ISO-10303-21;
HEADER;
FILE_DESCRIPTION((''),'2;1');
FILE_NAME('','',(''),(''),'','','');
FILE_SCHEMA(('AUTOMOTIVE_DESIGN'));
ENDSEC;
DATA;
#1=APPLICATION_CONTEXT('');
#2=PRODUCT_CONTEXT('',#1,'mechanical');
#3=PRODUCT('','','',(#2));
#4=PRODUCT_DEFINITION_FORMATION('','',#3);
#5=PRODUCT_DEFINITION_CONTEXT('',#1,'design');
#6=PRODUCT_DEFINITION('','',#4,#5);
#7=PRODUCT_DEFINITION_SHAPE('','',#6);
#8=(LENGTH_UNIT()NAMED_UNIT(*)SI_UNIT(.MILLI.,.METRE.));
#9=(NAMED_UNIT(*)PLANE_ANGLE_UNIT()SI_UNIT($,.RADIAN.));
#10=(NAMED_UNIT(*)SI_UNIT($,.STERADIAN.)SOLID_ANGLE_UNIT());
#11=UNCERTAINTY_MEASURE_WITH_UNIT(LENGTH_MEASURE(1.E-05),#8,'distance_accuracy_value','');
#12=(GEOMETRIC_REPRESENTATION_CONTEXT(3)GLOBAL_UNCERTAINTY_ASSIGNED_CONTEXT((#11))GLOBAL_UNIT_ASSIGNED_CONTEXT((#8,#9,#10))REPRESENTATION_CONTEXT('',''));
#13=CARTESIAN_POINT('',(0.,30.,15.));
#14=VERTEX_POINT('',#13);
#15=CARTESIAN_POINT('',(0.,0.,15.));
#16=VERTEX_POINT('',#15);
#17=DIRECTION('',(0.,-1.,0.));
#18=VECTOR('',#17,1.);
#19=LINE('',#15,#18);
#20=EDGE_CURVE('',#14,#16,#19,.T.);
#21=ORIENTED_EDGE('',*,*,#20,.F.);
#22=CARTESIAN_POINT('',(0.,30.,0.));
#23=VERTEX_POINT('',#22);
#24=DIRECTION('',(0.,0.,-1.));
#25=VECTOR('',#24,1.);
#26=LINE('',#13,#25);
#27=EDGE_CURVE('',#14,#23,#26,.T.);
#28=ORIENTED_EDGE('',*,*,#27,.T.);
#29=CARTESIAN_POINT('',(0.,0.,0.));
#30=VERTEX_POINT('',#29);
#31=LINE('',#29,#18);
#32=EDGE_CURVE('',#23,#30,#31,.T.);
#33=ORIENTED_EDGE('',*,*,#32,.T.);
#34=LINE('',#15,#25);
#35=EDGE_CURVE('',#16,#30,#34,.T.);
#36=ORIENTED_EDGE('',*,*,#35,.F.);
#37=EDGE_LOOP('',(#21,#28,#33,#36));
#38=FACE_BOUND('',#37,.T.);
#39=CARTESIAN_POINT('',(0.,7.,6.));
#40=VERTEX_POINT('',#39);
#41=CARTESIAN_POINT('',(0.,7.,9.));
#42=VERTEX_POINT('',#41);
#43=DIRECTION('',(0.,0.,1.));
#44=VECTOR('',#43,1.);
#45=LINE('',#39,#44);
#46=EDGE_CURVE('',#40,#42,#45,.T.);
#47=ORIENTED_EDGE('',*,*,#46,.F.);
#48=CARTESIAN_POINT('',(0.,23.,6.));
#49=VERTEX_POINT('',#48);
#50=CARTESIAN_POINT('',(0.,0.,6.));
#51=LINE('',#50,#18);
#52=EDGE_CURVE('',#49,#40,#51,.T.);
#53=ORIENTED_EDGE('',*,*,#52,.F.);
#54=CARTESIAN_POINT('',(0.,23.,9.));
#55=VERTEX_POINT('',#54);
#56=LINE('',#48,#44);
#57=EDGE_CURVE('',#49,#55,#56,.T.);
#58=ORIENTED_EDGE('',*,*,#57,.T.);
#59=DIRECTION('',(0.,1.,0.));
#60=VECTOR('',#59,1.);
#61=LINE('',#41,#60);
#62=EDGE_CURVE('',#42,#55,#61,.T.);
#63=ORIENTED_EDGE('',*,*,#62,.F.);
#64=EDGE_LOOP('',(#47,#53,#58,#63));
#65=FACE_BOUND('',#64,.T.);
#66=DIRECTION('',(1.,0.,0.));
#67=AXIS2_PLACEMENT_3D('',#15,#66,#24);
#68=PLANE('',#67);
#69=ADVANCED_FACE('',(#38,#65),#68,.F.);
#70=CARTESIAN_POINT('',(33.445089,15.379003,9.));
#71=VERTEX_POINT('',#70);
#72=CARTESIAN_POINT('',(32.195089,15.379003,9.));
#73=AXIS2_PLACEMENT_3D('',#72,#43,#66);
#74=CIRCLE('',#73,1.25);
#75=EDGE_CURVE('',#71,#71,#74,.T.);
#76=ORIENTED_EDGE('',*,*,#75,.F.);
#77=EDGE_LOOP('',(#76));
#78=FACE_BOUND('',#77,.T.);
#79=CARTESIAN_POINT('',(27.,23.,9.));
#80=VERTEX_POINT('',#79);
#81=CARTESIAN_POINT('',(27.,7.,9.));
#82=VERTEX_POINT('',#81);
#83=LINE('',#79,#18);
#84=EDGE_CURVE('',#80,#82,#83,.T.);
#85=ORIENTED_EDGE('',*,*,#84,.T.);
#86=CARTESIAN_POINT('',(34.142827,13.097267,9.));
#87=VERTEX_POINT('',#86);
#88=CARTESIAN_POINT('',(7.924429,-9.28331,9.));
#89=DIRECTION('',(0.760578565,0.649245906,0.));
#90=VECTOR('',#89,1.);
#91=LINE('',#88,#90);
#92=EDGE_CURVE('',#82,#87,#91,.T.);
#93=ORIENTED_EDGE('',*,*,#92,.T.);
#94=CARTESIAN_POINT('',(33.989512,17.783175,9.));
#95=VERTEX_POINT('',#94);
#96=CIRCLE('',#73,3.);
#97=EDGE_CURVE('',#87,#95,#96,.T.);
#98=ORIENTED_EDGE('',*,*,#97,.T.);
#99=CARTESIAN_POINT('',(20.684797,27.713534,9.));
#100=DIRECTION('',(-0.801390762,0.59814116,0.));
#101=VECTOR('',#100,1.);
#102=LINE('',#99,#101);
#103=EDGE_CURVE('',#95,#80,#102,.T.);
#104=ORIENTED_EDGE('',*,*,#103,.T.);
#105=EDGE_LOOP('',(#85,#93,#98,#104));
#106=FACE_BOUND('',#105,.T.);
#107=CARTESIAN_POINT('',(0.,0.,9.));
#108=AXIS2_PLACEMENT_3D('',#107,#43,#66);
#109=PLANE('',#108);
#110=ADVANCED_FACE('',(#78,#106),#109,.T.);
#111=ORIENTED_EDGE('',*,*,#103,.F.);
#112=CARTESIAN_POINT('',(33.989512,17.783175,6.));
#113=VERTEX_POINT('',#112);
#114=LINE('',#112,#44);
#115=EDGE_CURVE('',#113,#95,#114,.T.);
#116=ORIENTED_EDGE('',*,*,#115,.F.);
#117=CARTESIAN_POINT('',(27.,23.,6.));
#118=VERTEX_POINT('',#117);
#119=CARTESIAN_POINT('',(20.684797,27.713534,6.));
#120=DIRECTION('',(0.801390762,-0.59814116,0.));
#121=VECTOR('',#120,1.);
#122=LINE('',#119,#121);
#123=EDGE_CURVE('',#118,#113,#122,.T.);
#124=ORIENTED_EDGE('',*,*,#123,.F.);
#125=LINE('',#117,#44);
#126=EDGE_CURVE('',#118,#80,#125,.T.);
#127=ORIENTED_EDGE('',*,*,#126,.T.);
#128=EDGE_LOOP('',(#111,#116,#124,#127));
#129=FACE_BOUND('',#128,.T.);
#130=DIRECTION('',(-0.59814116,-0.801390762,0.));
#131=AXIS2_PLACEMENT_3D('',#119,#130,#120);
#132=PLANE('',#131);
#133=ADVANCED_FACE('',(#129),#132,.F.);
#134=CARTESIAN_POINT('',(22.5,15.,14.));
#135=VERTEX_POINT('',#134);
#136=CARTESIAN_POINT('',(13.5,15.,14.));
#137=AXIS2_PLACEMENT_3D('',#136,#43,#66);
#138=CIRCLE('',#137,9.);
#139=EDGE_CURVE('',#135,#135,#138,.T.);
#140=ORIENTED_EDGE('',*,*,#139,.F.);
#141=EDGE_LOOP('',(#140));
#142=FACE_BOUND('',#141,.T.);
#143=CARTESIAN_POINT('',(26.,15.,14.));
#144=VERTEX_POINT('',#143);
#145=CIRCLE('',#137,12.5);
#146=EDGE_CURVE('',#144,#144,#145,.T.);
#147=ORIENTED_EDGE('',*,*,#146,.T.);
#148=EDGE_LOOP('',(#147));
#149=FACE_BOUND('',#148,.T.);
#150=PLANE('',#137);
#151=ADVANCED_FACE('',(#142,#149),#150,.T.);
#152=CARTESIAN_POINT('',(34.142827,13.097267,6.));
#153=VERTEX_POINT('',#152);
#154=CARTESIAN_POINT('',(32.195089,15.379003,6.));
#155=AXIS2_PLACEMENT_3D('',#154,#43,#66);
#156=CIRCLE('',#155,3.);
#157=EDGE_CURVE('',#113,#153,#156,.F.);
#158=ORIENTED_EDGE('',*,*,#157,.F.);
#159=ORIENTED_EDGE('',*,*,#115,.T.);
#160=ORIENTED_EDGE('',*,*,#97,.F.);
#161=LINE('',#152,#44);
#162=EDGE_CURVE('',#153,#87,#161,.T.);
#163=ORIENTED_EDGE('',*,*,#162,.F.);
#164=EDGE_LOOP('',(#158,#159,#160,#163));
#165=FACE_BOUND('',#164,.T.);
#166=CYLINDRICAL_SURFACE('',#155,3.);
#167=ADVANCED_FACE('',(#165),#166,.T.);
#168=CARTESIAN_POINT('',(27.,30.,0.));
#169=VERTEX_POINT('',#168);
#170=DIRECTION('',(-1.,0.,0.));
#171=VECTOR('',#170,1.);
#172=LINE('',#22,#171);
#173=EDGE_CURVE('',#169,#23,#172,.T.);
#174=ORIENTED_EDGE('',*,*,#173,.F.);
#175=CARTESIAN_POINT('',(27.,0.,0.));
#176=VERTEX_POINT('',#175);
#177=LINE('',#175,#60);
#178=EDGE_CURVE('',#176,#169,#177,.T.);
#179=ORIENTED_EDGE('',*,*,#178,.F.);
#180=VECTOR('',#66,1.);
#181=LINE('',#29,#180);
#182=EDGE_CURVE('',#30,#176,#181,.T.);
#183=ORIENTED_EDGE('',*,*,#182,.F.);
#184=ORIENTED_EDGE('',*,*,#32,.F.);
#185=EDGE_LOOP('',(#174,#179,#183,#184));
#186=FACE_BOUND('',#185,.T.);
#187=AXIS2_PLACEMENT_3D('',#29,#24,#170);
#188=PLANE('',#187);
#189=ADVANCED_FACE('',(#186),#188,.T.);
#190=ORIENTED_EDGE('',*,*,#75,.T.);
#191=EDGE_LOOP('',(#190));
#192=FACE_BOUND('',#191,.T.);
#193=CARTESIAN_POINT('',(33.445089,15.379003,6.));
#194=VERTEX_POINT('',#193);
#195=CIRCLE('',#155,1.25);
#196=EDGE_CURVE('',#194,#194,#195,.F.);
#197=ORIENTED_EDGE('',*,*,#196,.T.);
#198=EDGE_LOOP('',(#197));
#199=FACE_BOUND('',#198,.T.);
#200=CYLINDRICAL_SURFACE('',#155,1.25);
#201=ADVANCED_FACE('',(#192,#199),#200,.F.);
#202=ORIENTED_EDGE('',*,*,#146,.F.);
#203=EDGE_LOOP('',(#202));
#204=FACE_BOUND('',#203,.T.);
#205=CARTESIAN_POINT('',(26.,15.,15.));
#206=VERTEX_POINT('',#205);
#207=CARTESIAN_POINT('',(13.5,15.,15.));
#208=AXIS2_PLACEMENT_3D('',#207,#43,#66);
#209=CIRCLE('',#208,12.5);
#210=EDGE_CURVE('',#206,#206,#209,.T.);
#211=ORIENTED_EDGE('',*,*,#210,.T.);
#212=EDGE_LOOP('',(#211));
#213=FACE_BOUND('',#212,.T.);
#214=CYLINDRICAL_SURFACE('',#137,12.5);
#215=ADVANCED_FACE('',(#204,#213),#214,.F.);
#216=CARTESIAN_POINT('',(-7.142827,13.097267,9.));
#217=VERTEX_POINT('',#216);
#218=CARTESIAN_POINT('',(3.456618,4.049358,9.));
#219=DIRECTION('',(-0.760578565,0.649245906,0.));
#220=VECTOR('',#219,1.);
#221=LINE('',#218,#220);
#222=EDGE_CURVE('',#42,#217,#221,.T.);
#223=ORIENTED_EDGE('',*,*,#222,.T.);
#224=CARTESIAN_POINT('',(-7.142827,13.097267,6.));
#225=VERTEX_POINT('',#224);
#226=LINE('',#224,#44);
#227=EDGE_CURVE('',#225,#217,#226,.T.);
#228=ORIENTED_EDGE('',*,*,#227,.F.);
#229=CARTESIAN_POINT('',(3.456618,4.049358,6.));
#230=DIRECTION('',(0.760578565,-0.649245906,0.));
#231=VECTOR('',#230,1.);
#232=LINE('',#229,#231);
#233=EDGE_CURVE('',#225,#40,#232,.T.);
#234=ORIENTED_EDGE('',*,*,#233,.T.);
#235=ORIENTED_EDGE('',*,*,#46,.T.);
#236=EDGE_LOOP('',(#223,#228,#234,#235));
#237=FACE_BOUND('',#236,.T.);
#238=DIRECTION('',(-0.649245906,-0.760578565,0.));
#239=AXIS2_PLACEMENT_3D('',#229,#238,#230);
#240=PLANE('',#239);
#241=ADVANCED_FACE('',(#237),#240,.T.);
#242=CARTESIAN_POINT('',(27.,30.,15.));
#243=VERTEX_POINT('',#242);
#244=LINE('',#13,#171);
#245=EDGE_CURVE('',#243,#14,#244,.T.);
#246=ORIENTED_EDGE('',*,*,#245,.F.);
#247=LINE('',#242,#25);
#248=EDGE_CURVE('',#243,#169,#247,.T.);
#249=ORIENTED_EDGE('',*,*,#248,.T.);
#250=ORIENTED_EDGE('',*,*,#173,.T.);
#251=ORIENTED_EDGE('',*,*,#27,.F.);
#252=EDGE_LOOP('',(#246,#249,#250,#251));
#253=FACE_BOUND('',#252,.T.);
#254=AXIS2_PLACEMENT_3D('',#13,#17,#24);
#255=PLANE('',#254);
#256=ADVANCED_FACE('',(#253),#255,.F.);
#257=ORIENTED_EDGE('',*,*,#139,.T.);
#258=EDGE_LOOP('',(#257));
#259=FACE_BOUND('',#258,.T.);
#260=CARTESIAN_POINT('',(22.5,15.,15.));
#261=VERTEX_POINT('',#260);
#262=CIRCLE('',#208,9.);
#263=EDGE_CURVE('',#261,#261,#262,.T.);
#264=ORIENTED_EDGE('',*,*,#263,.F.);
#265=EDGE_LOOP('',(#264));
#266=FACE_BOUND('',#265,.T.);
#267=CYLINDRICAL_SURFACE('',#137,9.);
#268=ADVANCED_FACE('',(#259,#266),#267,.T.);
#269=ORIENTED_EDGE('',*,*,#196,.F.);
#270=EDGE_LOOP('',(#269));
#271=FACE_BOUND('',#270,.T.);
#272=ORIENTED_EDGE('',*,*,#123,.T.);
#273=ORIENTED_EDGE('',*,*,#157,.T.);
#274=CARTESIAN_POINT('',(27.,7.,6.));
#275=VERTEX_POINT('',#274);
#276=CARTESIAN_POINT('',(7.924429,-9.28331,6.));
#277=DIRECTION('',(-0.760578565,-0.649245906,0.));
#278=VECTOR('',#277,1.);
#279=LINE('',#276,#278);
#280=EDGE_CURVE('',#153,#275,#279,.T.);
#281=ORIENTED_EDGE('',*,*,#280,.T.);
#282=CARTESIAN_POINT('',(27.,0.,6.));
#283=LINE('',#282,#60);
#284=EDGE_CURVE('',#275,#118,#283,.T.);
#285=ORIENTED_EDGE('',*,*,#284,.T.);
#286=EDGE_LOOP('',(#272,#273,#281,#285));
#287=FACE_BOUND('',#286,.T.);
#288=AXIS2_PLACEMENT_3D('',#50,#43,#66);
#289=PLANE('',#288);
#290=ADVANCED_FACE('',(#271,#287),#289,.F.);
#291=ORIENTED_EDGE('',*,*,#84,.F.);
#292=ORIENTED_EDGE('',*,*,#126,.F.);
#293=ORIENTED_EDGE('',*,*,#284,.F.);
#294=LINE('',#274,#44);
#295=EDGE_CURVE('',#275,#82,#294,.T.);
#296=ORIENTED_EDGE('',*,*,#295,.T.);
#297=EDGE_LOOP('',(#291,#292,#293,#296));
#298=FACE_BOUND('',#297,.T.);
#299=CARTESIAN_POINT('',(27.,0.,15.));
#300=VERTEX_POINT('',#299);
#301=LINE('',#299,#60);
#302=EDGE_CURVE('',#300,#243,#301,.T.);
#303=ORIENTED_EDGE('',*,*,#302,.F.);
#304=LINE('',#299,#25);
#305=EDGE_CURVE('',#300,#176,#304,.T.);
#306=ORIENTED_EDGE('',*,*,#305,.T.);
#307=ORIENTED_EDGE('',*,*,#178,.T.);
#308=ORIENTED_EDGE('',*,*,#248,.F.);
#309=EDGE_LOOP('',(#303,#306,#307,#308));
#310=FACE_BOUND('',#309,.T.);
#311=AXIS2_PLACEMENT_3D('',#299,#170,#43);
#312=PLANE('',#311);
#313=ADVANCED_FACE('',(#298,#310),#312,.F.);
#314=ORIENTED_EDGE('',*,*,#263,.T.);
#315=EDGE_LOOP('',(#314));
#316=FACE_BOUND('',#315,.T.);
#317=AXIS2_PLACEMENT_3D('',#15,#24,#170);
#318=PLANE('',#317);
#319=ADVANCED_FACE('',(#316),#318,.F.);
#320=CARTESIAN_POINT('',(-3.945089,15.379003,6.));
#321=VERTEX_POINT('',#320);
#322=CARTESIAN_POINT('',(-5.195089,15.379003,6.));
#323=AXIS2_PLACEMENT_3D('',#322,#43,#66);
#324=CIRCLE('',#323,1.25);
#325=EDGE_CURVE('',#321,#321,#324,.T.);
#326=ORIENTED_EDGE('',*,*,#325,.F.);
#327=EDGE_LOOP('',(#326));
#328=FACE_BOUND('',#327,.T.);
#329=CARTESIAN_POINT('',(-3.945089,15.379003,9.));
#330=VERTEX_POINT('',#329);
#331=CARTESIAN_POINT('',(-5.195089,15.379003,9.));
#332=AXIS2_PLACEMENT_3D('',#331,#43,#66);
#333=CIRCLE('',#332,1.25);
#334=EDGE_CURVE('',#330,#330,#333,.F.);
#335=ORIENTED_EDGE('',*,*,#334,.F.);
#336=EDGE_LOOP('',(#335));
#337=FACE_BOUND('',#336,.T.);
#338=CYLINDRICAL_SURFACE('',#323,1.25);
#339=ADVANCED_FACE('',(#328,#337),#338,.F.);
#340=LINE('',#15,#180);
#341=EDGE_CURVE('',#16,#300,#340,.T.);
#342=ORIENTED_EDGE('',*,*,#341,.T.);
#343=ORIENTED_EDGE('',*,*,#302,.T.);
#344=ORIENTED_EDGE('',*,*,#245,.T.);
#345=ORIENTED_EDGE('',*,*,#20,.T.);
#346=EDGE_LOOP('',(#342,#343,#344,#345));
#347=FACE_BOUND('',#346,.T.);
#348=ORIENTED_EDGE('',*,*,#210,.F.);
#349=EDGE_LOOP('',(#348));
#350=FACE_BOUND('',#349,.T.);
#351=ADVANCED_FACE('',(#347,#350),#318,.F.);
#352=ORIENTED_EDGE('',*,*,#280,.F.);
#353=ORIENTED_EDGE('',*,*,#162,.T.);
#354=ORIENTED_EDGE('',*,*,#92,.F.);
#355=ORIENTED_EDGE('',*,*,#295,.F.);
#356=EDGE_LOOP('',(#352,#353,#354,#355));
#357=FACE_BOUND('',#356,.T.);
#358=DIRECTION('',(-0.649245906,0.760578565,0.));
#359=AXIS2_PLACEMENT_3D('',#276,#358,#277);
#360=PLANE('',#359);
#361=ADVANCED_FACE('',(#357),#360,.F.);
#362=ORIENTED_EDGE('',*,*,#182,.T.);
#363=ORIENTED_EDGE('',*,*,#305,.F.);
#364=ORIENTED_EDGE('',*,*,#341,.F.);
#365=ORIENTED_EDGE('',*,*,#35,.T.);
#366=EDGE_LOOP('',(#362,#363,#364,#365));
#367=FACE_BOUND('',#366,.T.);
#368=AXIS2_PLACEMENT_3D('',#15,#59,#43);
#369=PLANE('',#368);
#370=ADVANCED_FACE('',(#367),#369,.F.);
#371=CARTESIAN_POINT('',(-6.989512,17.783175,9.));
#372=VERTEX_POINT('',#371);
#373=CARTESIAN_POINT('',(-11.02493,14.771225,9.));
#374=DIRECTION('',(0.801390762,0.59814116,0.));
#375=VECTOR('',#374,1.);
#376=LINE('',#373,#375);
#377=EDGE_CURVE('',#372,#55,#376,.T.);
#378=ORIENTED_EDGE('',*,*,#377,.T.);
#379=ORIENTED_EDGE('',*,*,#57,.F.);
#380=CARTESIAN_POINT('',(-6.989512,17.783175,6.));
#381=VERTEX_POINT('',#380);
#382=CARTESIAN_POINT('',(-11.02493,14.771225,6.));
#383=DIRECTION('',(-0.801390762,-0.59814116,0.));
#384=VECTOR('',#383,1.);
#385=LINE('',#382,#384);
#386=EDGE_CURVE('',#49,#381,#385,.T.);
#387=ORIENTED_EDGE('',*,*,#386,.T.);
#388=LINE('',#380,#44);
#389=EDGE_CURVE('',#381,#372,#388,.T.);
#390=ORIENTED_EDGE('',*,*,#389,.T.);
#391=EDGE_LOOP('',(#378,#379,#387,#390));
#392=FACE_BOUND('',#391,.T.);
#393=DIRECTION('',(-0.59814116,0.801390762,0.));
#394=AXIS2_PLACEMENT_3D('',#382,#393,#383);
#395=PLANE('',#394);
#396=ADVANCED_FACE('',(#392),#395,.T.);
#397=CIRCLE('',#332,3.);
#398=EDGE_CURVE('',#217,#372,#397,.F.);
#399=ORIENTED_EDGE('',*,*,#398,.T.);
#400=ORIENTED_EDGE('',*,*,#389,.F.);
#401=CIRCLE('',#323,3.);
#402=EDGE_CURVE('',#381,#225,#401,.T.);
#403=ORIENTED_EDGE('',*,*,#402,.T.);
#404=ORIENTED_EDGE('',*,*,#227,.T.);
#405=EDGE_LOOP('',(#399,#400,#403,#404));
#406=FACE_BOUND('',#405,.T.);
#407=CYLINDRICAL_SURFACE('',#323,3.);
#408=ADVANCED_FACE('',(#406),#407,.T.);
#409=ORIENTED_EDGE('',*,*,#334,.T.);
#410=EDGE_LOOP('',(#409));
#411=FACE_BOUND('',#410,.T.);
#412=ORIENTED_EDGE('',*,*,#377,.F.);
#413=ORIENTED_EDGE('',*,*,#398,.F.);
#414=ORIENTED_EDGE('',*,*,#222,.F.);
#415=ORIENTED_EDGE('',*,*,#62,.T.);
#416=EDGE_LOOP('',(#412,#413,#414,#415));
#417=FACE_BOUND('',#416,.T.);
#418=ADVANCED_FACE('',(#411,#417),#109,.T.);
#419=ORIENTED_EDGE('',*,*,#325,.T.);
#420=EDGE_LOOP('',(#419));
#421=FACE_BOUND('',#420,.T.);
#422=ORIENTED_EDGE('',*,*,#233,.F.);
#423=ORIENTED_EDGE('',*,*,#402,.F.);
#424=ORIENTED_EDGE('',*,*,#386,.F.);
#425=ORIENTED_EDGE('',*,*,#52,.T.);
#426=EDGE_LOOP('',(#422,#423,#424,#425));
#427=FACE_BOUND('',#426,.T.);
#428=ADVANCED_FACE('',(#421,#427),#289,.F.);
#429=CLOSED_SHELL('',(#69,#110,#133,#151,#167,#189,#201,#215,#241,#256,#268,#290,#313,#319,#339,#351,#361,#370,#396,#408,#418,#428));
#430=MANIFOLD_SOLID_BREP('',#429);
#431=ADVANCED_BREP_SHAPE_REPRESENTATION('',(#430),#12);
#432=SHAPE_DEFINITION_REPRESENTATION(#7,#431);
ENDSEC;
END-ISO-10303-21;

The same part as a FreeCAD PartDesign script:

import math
import FreeCAD as App
import Part
import Sketcher

doc = App.newDocument("Part")
body = doc.addObject("PartDesign::Body", "Body")

# Sketch on XY plane
sketch1 = body.newObject("Sketcher::SketchObject", "Sketch")
sketch1.AttachmentSupport = (doc.getObject("XY_Plane"), [""])
sketch1.MapMode = "FlatFace"
sketch1.addGeometry([
    Part.LineSegment(App.Vector(0, 30, 0), App.Vector(0, 0, 0)),
    Part.LineSegment(App.Vector(0, 0, 0), App.Vector(27, 0, 0)),
    Part.LineSegment(App.Vector(27, 0, 0), App.Vector(27, 30, 0)),
    Part.LineSegment(App.Vector(27, 30, 0), App.Vector(0, 30, 0)),
], False)
sketch1.addConstraint([
    Sketcher.Constraint("Coincident", 0, 2, 1, 1),
    Sketcher.Constraint("Coincident", 1, 2, 2, 1),
    Sketcher.Constraint("Coincident", 2, 2, 3, 1),
    Sketcher.Constraint("Coincident", 3, 2, 0, 1),
    Sketcher.Constraint("Vertical", 0),
    Sketcher.Constraint("Horizontal", 1),
    Sketcher.Constraint("Vertical", 2),
    Sketcher.Constraint("Horizontal", 3),
    Sketcher.Constraint("Coincident", 0, 2, -1, 1),
    Sketcher.Constraint("DistanceX", 1, 1, 1, 2, 27.0),
    Sketcher.Constraint("DistanceY", 0, 2, 0, 1, 30.0),
])
pad1 = body.newObject("PartDesign::Pad", "Pad")
pad1.Profile = sketch1
pad1.Length = 15

# Sketch on XY plane
sketch2 = body.newObject("Sketcher::SketchObject", "Sketch001")
sketch2.AttachmentSupport = (doc.getObject("XY_Plane"), [""])
sketch2.MapMode = "FlatFace"
sketch2.AttachmentOffset = App.Placement(App.Vector(0, 0, 15), App.Rotation())
sketch2.addGeometry([
    Part.Circle(App.Vector(13.5, 15, 0), App.Vector(0, 0, 1), 12.5),
    Part.Circle(App.Vector(13.5, 15, 0), App.Vector(0, 0, 1), 9),
], False)
sketch2.addConstraint([
    Sketcher.Constraint("Coincident", 1, 3, 0, 3),
    Sketcher.Constraint("Diameter", 0, 25.0),
    Sketcher.Constraint("Diameter", 1, 18.0),
    Sketcher.Constraint("DistanceY", -1, 1, 0, 3, 15.0),
    Sketcher.Constraint("DistanceX", -1, 1, 0, 3, 13.5),
])
pocket1 = body.newObject("PartDesign::Pocket", "Pocket")
pocket1.Profile = sketch2
pocket1.Length = 1

# Sketch on XY plane
sketch3 = body.newObject("Sketcher::SketchObject", "Sketch002")
sketch3.AttachmentSupport = (doc.getObject("XY_Plane"), [""])
sketch3.MapMode = "FlatFace"
sketch3.AttachmentOffset = App.Placement(App.Vector(0, 0, 15), App.Rotation())
sketch3.addGeometry([
    Part.LineSegment(App.Vector(0, 7, 0), App.Vector(0, 23, 0)),  # 0
    Part.LineSegment(App.Vector(0, 23, 0), App.Vector(-6.989512, 17.783175, 0)),  # 1
    Part.ArcOfCircle(Part.Circle(App.Vector(-5.195089, 15.379003, 0), App.Vector(0, 0, 1), 3), math.radians(126.736884), math.radians(229.515229)),  # 2
    Part.LineSegment(App.Vector(-7.142827, 13.097267, 0), App.Vector(0, 7, 0)),  # 3
    Part.Circle(App.Vector(-5.195089, 15.379003, 0), App.Vector(0, 0, 1), 1.25),  # 4
    Part.LineSegment(App.Vector(27, 7, 0), App.Vector(34.142827, 13.097267, 0)),  # 5
    Part.ArcOfCircle(Part.Circle(App.Vector(32.195089, 15.379003, 0), App.Vector(0, 0, 1), 3), math.radians(-49.515229), math.radians(53.263116)),  # 6
    Part.LineSegment(App.Vector(33.989512, 17.783175, 0), App.Vector(27, 23, 0)),  # 7
    Part.LineSegment(App.Vector(27, 23, 0), App.Vector(27, 7, 0)),  # 8
    Part.Circle(App.Vector(32.195089, 15.379003, 0), App.Vector(0, 0, 1), 1.25),  # 9
], False)
sketch3.addConstraint([
    Sketcher.Constraint("Coincident", 0, 2, 1, 1),
    Sketcher.Constraint("Tangent", 1, 2, 2, 1),
    Sketcher.Constraint("Tangent", 2, 2, 3, 1),
    Sketcher.Constraint("Coincident", 3, 2, 0, 1),
    Sketcher.Constraint("Tangent", 5, 2, 6, 1),
    Sketcher.Constraint("Tangent", 6, 2, 7, 1),
    Sketcher.Constraint("Coincident", 7, 2, 8, 1),
    Sketcher.Constraint("Coincident", 8, 2, 5, 1),
    Sketcher.Constraint("Vertical", 0),
    Sketcher.Constraint("Vertical", 8),
    Sketcher.Constraint("Coincident", 4, 3, 2, 3),
    Sketcher.Constraint("Coincident", 9, 3, 6, 3),
    Sketcher.Constraint("Equal", 2, 6),
    Sketcher.Constraint("Equal", 4, 9),
    Sketcher.Constraint("PointOnObject", 0, 2, -2),
    Sketcher.Constraint("Horizontal", 4, 3, 6, 3),
    Sketcher.Constraint("Horizontal", 2, 2, 5, 2),
    Sketcher.Constraint("Horizontal", 1, 2, 6, 2),
    Sketcher.Constraint("Horizontal", 0, 2, 7, 2),
    Sketcher.Constraint("Radius", 2, 3.0),
    Sketcher.Constraint("Diameter", 4, 2.5),
    Sketcher.Constraint("DistanceY", 0, 1, 0, 2, 16.0),
    Sketcher.Constraint("DistanceY", -1, 1, 0, 2, 23.0),
    Sketcher.Constraint("DistanceX", -1, 1, 7, 2, 27.0),
    Sketcher.Constraint("DistanceX", 1, 2, 6, 3, 39.184601),
    Sketcher.Constraint("Distance", 1, 8.721728),
])
pad2 = body.newObject("PartDesign::Pad", "Pad001")
pad2.Profile = sketch3
pad2.Length = 9
pad2.Reversed = True

# Sketch on XY plane
sketch4 = body.newObject("Sketcher::SketchObject", "Sketch003")
sketch4.AttachmentSupport = (doc.getObject("XY_Plane"), [""])
sketch4.MapMode = "FlatFace"
sketch4.AttachmentOffset = App.Placement(App.Vector(0, 0, 15), App.Rotation())
sketch4.addGeometry([
    Part.LineSegment(App.Vector(0, 23, 0), App.Vector(-13.068539, 23, 0)),  # 0
    Part.LineSegment(App.Vector(-13.068539, 23, 0), App.Vector(-13.068539, 5.328314, 0)),  # 1
    Part.LineSegment(App.Vector(-13.068539, 5.328314, 0), App.Vector(0, 7, 0)),  # 2
    Part.LineSegment(App.Vector(0, 7, 0), App.Vector(0, 23, 0)),  # 3
    Part.LineSegment(App.Vector(27, 23, 0), App.Vector(27, 7, 0)),  # 4
    Part.LineSegment(App.Vector(27, 7, 0), App.Vector(37.736601, 7, 0)),  # 5
    Part.LineSegment(App.Vector(37.736601, 7, 0), App.Vector(37.736601, 23, 0)),  # 6
    Part.LineSegment(App.Vector(37.736601, 23, 0), App.Vector(27, 23, 0)),  # 7
], False)
sketch4.addConstraint([
    Sketcher.Constraint("Coincident", 0, 2, 1, 1),
    Sketcher.Constraint("Coincident", 1, 2, 2, 1),
    Sketcher.Constraint("Coincident", 2, 2, 3, 1),
    Sketcher.Constraint("Coincident", 3, 2, 0, 1),
    Sketcher.Constraint("Coincident", 4, 2, 5, 1),
    Sketcher.Constraint("Coincident", 5, 2, 6, 1),
    Sketcher.Constraint("Coincident", 6, 2, 7, 1),
    Sketcher.Constraint("Coincident", 7, 2, 4, 1),
    Sketcher.Constraint("Horizontal", 0),
    Sketcher.Constraint("Vertical", 1),
    Sketcher.Constraint("Vertical", 3),
    Sketcher.Constraint("Vertical", 4),
    Sketcher.Constraint("Horizontal", 5),
    Sketcher.Constraint("Vertical", 6),
    Sketcher.Constraint("Horizontal", 7),
    Sketcher.Constraint("PointOnObject", 2, 2, -2),
    Sketcher.Constraint("Horizontal", 2, 2, 4, 2),
    Sketcher.Constraint("Horizontal", 3, 2, 6, 2),
    Sketcher.Constraint("DistanceY", 3, 1, 3, 2, 16.0),
    Sketcher.Constraint("DistanceY", -1, 1, 0, 2, 23.0),
    Sketcher.Constraint("DistanceX", -1, 1, 4, 2, 27.0),
    Sketcher.Constraint("DistanceX", 5, 1, 5, 2, 10.736601),
    Sketcher.Constraint("DistanceX", 0, 2, 0, 1, 13.068539),
    Sketcher.Constraint("DistanceY", 1, 2, 1, 1, 17.671686),
])
pocket2 = body.newObject("PartDesign::Pocket", "Pocket001")
pocket2.Profile = sketch4
pocket2.Length = 6

doc.recompute()
